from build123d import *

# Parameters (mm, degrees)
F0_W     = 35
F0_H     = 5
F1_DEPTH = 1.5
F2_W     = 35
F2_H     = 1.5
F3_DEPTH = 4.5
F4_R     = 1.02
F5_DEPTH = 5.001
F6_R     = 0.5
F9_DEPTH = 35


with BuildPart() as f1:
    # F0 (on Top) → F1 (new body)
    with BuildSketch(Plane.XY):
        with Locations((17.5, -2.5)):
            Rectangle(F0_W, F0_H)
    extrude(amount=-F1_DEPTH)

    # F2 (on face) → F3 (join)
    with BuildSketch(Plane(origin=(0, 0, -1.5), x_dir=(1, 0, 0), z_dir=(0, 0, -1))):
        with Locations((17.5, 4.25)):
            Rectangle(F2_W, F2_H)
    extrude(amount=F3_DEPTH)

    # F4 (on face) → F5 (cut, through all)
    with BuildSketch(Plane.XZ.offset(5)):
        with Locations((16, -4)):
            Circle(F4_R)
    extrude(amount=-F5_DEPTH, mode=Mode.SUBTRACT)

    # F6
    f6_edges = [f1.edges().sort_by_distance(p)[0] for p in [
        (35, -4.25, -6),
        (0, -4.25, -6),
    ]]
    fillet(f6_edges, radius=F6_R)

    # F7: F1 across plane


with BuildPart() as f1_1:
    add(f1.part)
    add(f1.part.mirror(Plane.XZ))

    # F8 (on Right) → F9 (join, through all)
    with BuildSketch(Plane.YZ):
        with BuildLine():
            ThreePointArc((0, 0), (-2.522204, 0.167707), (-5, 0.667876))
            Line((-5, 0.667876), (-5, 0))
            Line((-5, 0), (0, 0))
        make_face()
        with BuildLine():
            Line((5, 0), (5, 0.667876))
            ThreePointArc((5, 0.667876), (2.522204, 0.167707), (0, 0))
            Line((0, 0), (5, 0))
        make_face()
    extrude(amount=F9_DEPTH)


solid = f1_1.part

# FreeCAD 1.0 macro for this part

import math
import FreeCAD as App
import Part
import Sketcher

V = App.Vector
Q = App.Units.Quantity


def edges_at(feature, points):
    """Names of the edges that pass closest to the given points."""
    edges = feature.Shape.Edges
    near = lambda p: min(range(len(edges)), key=lambda i: edges[i].distToShape(Part.Vertex(*p))[0])
    return sorted({f"Edge{near(p) + 1}" for p in points})

doc = App.newDocument("Part")
body = doc.addObject("PartDesign::Body", "Body")

# Sketch on XY plane
sketch1 = body.newObject("Sketcher::SketchObject", "Sketch")
sketch1.AttachmentSupport = (doc.getObject("XY_Plane"), [""])
sketch1.MapMode = "FlatFace"
sketch1.addGeometry(Part.LineSegment(V(0, 0, 0), V(0, -5, 0)), False)
sketch1.addGeometry(Part.LineSegment(V(0, -5, 0), V(35, -5, 0)), False)
sketch1.addGeometry(Part.LineSegment(V(35, -5, 0), V(35, 0, 0)), False)
sketch1.addGeometry(Part.LineSegment(V(35, 0, 0), V(0, 0, 0)), False)
sketch1.addConstraint(Sketcher.Constraint("Coincident", 0, 2, 1, 1))
sketch1.addConstraint(Sketcher.Constraint("Coincident", 1, 2, 2, 1))
sketch1.addConstraint(Sketcher.Constraint("Coincident", 2, 2, 3, 1))
sketch1.addConstraint(Sketcher.Constraint("Coincident", 3, 2, 0, 1))
sketch1.addConstraint(Sketcher.Constraint("Vertical", 0))
sketch1.addConstraint(Sketcher.Constraint("Horizontal", 1))
sketch1.addConstraint(Sketcher.Constraint("Vertical", 2))
sketch1.addConstraint(Sketcher.Constraint("Horizontal", 3))
sketch1.addConstraint(Sketcher.Constraint("Coincident", 3, 2, -1, 1))
sketch1.addConstraint(Sketcher.Constraint("DistanceX", 1, 1, 1, 2, Q("35 mm")))
sketch1.addConstraint(Sketcher.Constraint("DistanceY", 0, 2, 0, 1, Q("5 mm")))
pad1 = body.newObject("PartDesign::Pad", "Pad")
pad1.Profile = sketch1
pad1.Length = 1.5
pad1.Reversed = True

# Sketch on XY plane
sketch2 = body.newObject("Sketcher::SketchObject", "Sketch001")
sketch2.AttachmentSupport = (doc.getObject("XY_Plane"), [""])
sketch2.MapMode = "FlatFace"
sketch2.AttachmentOffset = App.Placement(V(0, 0, -1.5), App.Rotation())
sketch2.addGeometry(Part.LineSegment(V(0, -5, 0), V(0, -3.5, 0)), False)
sketch2.addGeometry(Part.LineSegment(V(0, -3.5, 0), V(35, -3.5, 0)), False)
sketch2.addGeometry(Part.LineSegment(V(35, -3.5, 0), V(35, -5, 0)), False)
sketch2.addGeometry(Part.LineSegment(V(35, -5, 0), V(0, -5, 0)), False)
sketch2.addConstraint(Sketcher.Constraint("Coincident", 0, 2, 1, 1))
sketch2.addConstraint(Sketcher.Constraint("Coincident", 1, 2, 2, 1))
sketch2.addConstraint(Sketcher.Constraint("Coincident", 2, 2, 3, 1))
sketch2.addConstraint(Sketcher.Constraint("Coincident", 3, 2, 0, 1))
sketch2.addConstraint(Sketcher.Constraint("Vertical", 0))
sketch2.addConstraint(Sketcher.Constraint("Horizontal", 1))
sketch2.addConstraint(Sketcher.Constraint("Vertical", 2))
sketch2.addConstraint(Sketcher.Constraint("Horizontal", 3))
sketch2.addConstraint(Sketcher.Constraint("PointOnObject", 0, 2, -2))
sketch2.addConstraint(Sketcher.Constraint("DistanceX", 1, 1, 1, 2, Q("35 mm")))
sketch2.addConstraint(Sketcher.Constraint("DistanceY", 0, 1, 0, 2, Q("1.5 mm")))
sketch2.addConstraint(Sketcher.Constraint("DistanceY", 2, 2, -1, 1, Q("5 mm")))
pad2 = body.newObject("PartDesign::Pad", "Pad001")
pad2.Profile = sketch2
pad2.Length = 4.5
pad2.Reversed = True

# Sketch on XZ plane
sketch3 = body.newObject("Sketcher::SketchObject", "Sketch002")
sketch3.AttachmentSupport = (doc.getObject("XZ_Plane"), [""])
sketch3.MapMode = "FlatFace"
sketch3.AttachmentOffset = App.Placement(V(0, 0, 5), App.Rotation())
sketch3.addGeometry(Part.Circle(V(16, -4, 0), V(0, 0, 1), 1), False)
sketch3.addConstraint(Sketcher.Constraint("Diameter", 0, Q("2.04 mm")))
sketch3.addConstraint(Sketcher.Constraint("DistanceX", -1, 1, 0, 3, Q("16 mm")))
sketch3.addConstraint(Sketcher.Constraint("DistanceY", 0, 3, -1, 1, Q("4 mm")))
pocket1 = body.newObject("PartDesign::Pocket", "Pocket")
pocket1.Profile = sketch3
pocket1.Type = "ThroughAll"
doc.recompute()

fillet = body.newObject("PartDesign::Fillet", "Fillet")
fillet.Base = (pocket1, edges_at(pocket1, [(35, -4.25, -6), (0, -4.25, -6)]))
fillet.Radius = 0.5
body2 = doc.addObject("PartDesign::Body", "Body001")
doc.recompute()

body2.BaseFeature = body
doc.recompute()

mirroring = doc.addObject("Part::Mirroring", "Mirroring")
mirroring.Source = body
mirroring.Base = V(0, 0, 0)
mirroring.Normal = V(0, -1, 0)
body3 = doc.addObject("PartDesign::Body", "Body002")
body3.BaseFeature = mirroring
boolean = body2.newObject("PartDesign::Boolean", "Boolean")
boolean.Type = "Fuse"
boolean.addObjects([body3])
doc.recompute()

# Sketch on YZ plane
sketch4 = body2.newObject("Sketcher::SketchObject", "Sketch003")
sketch4.AttachmentSupport = (doc.getObject("YZ_Plane001"), [""])
sketch4.MapMode = "FlatFace"
sketch4.addGeometry(Part.ArcOfCircle(Part.Circle(V(0, 19, 0), V(0, 0, 1), 19), math.radians(-105.22), math.radians(-90)), False)
sketch4.addGeometry(Part.LineSegment(V(-5, 0.7, 0), V(-5, 0, 0)), False)
sketch4.addGeometry(Part.LineSegment(V(-5, 0, 0), V(0, 0, 0)), False)
sketch4.addGeometry(Part.LineSegment(V(5, 0, 0), V(5, 0.7, 0)), False)
sketch4.addGeometry(Part.ArcOfCircle(Part.Circle(V(0, 19, 0), V(0, 0, 1), 19), math.radians(-90), math.radians(-74.78)), False)
sketch4.addGeometry(Part.LineSegment(V(0, 0, 0), V(5, 0, 0)), False)
sketch4.addConstraint(Sketcher.Constraint("Coincident", 0, 1, 1, 1))
sketch4.addConstraint(Sketcher.Constraint("Coincident", 1, 2, 2, 1))
sketch4.addConstraint(Sketcher.Constraint("Tangent", 2, 2, 0, 2))
sketch4.addConstraint(Sketcher.Constraint("Coincident", 3, 2, 4, 2))
sketch4.addConstraint(Sketcher.Constraint("Tangent", 4, 1, 5, 1))
sketch4.addConstraint(Sketcher.Constraint("Coincident", 5, 2, 3, 1))
sketch4.addConstraint(Sketcher.Constraint("Vertical", 1))
sketch4.addConstraint(Sketcher.Constraint("Horizontal", 2))
sketch4.addConstraint(Sketcher.Constraint("Vertical", 3))
sketch4.addConstraint(Sketcher.Constraint("Horizontal", 5))
sketch4.addConstraint(Sketcher.Constraint("Coincident", 2, 2, -1, 1))
sketch4.addConstraint(Sketcher.Constraint("Coincident", 4, 1, -1, 1))
sketch4.addConstraint(Sketcher.Constraint("Equal", 0, 4))
sketch4.addConstraint(Sketcher.Constraint("Horizontal", 0, 1, 3, 2))
sketch4.addConstraint(Sketcher.Constraint("DistanceX", 2, 1, 2, 2, Q("5 mm")))
sketch4.addConstraint(Sketcher.Constraint("Radius", 0, Q("19.049969 mm")))
pad3 = body2.newObject("PartDesign::Pad", "Pad002")
pad3.Profile = sketch4
pad3.Length = 35
mirroring.Visibility = False

doc.recompute()
